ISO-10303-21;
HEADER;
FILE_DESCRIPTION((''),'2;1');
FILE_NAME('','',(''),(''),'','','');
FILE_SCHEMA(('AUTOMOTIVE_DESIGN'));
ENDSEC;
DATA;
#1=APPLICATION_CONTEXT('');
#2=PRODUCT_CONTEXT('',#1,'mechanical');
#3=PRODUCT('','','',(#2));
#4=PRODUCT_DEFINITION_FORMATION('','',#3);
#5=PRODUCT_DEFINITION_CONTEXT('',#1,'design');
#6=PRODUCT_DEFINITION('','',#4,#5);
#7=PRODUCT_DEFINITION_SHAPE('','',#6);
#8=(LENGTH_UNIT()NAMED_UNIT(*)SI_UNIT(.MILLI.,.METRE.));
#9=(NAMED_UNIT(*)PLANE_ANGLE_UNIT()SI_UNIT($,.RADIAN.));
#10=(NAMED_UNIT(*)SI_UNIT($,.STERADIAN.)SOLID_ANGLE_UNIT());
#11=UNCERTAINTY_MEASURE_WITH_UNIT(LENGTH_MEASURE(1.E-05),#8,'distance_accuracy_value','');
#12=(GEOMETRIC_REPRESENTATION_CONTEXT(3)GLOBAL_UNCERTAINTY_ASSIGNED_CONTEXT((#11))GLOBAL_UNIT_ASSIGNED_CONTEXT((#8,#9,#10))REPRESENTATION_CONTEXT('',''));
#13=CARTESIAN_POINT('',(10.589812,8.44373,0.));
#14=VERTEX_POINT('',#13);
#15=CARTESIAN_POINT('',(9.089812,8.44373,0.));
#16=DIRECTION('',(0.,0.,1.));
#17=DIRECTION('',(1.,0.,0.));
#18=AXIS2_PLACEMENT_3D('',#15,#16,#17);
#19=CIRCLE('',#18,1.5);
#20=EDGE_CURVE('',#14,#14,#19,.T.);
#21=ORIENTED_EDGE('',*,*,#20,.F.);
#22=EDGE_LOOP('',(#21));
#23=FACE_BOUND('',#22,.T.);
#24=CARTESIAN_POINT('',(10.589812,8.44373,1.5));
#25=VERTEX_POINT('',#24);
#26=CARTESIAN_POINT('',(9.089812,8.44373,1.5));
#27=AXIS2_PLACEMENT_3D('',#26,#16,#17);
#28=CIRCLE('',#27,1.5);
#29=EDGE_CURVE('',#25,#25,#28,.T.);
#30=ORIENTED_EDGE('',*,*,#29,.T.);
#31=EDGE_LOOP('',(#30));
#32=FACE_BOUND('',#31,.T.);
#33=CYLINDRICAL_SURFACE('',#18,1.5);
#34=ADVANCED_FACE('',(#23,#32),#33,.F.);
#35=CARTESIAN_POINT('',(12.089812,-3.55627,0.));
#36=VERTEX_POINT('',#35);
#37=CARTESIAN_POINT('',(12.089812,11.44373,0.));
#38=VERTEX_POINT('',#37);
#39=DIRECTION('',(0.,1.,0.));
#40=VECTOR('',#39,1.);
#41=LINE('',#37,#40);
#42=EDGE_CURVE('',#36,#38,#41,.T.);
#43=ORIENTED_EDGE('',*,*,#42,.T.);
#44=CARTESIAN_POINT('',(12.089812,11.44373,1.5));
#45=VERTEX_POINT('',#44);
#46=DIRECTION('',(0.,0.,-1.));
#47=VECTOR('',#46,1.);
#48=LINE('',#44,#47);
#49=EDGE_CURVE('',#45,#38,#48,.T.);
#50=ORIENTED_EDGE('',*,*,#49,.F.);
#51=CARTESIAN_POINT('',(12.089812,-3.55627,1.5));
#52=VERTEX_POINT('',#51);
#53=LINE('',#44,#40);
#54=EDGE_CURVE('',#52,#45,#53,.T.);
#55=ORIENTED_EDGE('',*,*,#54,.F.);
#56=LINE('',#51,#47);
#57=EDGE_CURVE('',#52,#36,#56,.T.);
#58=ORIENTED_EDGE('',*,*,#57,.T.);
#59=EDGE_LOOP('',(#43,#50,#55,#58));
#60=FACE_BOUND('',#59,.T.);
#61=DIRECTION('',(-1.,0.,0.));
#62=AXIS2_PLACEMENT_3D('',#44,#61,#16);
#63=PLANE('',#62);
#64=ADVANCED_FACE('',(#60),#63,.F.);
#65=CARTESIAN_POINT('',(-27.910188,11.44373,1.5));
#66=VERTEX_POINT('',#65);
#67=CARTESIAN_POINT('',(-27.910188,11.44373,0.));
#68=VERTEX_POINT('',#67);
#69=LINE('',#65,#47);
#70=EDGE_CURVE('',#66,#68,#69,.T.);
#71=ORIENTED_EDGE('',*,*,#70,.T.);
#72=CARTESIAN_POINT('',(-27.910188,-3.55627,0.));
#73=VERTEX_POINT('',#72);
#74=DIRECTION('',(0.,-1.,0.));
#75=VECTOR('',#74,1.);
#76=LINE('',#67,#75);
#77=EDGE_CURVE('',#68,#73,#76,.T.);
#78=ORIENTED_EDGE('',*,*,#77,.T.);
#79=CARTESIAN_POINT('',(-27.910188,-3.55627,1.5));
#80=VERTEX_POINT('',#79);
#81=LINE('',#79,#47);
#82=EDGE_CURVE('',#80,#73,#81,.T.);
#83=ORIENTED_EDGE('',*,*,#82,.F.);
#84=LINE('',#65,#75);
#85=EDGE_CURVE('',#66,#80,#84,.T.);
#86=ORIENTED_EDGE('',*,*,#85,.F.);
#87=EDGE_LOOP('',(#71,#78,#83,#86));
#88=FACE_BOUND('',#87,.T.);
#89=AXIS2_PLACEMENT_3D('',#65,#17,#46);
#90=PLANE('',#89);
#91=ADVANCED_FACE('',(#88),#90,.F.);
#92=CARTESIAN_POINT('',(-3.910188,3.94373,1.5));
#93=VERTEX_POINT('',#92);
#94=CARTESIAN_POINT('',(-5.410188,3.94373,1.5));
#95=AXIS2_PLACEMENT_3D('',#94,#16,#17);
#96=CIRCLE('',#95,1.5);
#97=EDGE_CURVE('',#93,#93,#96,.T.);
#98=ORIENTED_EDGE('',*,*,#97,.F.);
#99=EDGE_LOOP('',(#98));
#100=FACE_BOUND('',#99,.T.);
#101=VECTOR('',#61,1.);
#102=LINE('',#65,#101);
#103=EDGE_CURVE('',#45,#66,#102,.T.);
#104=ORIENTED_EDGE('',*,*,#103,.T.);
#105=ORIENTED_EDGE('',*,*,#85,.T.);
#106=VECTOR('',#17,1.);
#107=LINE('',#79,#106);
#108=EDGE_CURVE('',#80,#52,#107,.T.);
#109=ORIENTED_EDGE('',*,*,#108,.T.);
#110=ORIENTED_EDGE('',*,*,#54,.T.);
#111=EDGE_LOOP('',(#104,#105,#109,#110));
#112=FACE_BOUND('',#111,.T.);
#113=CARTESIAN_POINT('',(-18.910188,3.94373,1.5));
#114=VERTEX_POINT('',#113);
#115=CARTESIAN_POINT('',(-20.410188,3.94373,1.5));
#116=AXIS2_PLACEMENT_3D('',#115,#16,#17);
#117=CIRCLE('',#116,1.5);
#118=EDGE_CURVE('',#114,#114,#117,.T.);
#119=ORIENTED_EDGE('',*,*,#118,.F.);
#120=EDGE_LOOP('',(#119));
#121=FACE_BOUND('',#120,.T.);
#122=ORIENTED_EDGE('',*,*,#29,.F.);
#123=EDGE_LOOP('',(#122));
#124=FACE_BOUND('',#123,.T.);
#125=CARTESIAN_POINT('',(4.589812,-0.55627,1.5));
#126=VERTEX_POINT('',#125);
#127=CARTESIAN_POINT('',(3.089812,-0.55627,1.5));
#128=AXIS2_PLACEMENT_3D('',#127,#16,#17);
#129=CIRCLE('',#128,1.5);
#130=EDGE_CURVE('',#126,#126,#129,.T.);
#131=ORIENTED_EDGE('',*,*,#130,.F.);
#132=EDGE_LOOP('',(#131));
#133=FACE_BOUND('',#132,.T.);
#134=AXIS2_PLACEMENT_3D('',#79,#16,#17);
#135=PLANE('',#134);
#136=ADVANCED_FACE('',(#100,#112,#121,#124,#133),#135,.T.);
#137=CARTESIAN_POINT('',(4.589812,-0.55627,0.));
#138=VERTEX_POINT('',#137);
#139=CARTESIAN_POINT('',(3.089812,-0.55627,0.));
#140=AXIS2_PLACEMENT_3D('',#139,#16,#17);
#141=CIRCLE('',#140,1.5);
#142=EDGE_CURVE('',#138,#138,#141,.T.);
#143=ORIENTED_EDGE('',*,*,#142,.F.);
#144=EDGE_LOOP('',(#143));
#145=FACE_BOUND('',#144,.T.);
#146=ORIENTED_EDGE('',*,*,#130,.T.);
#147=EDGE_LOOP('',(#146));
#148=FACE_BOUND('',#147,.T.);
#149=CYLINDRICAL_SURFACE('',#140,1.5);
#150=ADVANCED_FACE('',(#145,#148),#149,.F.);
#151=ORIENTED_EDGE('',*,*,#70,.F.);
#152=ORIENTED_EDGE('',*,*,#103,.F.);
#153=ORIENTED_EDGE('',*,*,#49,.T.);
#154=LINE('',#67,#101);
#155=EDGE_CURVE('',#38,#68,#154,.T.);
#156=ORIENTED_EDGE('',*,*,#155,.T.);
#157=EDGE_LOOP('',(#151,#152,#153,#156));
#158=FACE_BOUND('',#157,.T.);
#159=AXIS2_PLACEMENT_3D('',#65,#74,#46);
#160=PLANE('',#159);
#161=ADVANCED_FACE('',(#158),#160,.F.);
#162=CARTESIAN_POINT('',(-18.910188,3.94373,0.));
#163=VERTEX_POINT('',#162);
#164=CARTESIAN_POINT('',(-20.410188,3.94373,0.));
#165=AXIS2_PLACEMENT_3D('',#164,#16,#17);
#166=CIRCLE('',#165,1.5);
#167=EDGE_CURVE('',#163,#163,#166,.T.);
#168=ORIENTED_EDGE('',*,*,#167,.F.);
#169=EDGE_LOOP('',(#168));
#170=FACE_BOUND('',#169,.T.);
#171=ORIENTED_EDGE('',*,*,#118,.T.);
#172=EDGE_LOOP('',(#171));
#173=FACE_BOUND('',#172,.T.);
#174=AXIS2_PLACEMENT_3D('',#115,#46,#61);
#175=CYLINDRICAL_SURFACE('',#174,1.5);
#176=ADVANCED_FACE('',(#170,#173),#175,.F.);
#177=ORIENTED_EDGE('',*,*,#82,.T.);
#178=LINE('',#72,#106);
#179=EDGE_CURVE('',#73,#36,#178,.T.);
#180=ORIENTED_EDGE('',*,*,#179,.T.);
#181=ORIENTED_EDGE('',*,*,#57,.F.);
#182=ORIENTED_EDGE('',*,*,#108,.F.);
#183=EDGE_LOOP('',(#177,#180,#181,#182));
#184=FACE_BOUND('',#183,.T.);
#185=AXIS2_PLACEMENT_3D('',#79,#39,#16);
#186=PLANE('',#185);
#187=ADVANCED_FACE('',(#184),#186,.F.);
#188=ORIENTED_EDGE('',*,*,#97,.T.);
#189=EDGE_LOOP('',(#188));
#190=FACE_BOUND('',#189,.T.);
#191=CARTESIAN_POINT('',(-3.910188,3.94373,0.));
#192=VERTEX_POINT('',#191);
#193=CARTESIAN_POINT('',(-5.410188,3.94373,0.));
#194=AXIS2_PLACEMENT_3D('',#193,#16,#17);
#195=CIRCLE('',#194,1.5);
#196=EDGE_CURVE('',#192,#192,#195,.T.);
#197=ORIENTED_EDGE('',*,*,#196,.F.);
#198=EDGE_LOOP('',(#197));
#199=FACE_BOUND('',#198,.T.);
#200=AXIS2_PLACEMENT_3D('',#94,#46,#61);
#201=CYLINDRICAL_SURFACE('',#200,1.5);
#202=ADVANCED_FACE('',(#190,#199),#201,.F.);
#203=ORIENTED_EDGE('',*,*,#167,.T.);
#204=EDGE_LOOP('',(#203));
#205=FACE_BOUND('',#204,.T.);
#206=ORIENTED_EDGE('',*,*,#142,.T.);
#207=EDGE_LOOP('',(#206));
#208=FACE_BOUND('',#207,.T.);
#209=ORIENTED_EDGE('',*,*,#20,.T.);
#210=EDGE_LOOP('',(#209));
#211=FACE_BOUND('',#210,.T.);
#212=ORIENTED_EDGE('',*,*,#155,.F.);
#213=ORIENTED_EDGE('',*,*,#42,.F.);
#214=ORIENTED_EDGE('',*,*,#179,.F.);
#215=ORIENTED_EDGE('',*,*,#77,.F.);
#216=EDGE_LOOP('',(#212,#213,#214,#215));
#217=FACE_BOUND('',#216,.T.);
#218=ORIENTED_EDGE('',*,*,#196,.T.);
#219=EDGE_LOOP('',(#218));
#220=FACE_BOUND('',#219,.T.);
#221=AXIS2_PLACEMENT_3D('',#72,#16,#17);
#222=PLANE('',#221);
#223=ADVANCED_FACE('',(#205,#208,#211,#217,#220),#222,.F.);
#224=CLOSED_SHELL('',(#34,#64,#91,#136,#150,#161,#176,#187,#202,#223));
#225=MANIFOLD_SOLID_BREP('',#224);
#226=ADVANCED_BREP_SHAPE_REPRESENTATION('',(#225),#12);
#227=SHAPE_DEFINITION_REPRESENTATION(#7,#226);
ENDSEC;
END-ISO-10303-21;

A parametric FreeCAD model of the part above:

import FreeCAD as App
import Part
import Sketcher
from FreeCAD import Vector
Q = App.Units.Quantity


def add_polygon(sketch, points):
    """Adds a closed chain of lines whose ends are joined by coincident constraints."""
    first, n = sketch.GeometryCount, len(points)
    for a, b in zip(points, points[1:] + points[:1]):
        sketch.addGeometry(Part.LineSegment(App.Vector(*a, 0), App.Vector(*b, 0)), False)
    for i in range(n):
        sketch.addConstraint(Sketcher.Constraint("Coincident", first + i, 2, first + (i + 1) % n, 1))

doc = App.newDocument("Part")
body = doc.addObject("PartDesign::Body", "Body")

# Sketch on XY plane
sketch1 = doc.addObject("Sketcher::SketchObject", "Sketch")
body.addObject(sketch1)
sketch1.AttachmentSupport = (doc.XY_Plane, [""])
sketch1.MapMode = "FlatFace"
add_polygon(sketch1, [(-27.910188, 11.44373), (-27.910188, -3.55627), (12.089812, -3.55627), (12.089812, 11.44373)])  # lines 0-3
sketch1.addGeometry(Part.Circle(Vector(-20.410188, 3.94373, 0), Vector(0, 0, 1), 1.5), False)  # 4
sketch1.addGeometry(Part.Circle(Vector(-5.410188, 3.94373, 0), Vector(0, 0, 1), 1.5), False)  # 5
sketch1.addConstraint([
    Sketcher.Constraint("Vertical", 0),
    Sketcher.Constraint("Horizontal", 1),
    Sketcher.Constraint("Vertical", 2),
    Sketcher.Constraint("Horizontal", 3),
    Sketcher.Constraint("Equal", 4, 5),
    Sketcher.Constraint("Horizontal", 4, 3, 5, 3),
    Sketcher.Constraint("Diameter", 4, Q("3 mm")),
    Sketcher.Constraint("DistanceX", 1, 1, 1, 2, Q("40 mm")),
    Sketcher.Constraint("DistanceY", 0, 2, 0, 1, Q("15 mm")),
    Sketcher.Constraint("DistanceX", 4, 3, 5, 3, Q("15 mm")),
    Sketcher.Constraint("DistanceX", 0, 2, 4, 3, Q("7.5 mm")),
    Sketcher.Constraint("DistanceY", 0, 2, 4, 3, Q("7.5 mm")),
    Sketcher.Constraint("DistanceY", -1, 1, 4, 3, Q("3.94373 mm")),
    Sketcher.Constraint("DistanceX", 4, 3, -1, 1, Q("20.410188 mm")),
])
pad1 = doc.addObject("PartDesign::Pad", "Pad")
body.addObject(pad1)
pad1.Profile = sketch1
pad1.Length = 1.5

# Sketch on XY plane
sketch2 = doc.addObject("Sketcher::SketchObject", "Sketch001")
body.addObject(sketch2)
sketch2.AttachmentSupport = (doc.XY_Plane, [""])
sketch2.MapMode = "FlatFace"
sketch2.AttachmentOffset = App.Placement(Vector(0, 0, 1.5), App.Rotation())
sketch2.addGeometry([
    Part.Circle(Vector(9.089812, 8.44373, 0), Vector(0, 0, 1), 1.5),
    Part.Circle(Vector(3.089812, -0.55627, 0), Vector(0, 0, 1), 1.5),
], False)
sketch2.addConstraint([
    Sketcher.Constraint("Equal", 0, 1),
    Sketcher.Constraint("Diameter", 0, Q("3 mm")),
    Sketcher.Constraint("DistanceX", 1, 3, 0, 3, Q("6 mm")),
    Sketcher.Constraint("DistanceY", 1, 3, 0, 3, Q("9 mm")),
    Sketcher.Constraint("DistanceY", -1, 1, 0, 3, Q("8.44373 mm")),
    Sketcher.Constraint("DistanceX", -1, 1, 0, 3, Q("9.089812 mm")),
])
pocket1 = doc.addObject("PartDesign::Pocket", "Pocket")
body.addObject(pocket1)
pocket1.Profile = sketch2
pocket1.Length = 1.5

doc.recompute()
